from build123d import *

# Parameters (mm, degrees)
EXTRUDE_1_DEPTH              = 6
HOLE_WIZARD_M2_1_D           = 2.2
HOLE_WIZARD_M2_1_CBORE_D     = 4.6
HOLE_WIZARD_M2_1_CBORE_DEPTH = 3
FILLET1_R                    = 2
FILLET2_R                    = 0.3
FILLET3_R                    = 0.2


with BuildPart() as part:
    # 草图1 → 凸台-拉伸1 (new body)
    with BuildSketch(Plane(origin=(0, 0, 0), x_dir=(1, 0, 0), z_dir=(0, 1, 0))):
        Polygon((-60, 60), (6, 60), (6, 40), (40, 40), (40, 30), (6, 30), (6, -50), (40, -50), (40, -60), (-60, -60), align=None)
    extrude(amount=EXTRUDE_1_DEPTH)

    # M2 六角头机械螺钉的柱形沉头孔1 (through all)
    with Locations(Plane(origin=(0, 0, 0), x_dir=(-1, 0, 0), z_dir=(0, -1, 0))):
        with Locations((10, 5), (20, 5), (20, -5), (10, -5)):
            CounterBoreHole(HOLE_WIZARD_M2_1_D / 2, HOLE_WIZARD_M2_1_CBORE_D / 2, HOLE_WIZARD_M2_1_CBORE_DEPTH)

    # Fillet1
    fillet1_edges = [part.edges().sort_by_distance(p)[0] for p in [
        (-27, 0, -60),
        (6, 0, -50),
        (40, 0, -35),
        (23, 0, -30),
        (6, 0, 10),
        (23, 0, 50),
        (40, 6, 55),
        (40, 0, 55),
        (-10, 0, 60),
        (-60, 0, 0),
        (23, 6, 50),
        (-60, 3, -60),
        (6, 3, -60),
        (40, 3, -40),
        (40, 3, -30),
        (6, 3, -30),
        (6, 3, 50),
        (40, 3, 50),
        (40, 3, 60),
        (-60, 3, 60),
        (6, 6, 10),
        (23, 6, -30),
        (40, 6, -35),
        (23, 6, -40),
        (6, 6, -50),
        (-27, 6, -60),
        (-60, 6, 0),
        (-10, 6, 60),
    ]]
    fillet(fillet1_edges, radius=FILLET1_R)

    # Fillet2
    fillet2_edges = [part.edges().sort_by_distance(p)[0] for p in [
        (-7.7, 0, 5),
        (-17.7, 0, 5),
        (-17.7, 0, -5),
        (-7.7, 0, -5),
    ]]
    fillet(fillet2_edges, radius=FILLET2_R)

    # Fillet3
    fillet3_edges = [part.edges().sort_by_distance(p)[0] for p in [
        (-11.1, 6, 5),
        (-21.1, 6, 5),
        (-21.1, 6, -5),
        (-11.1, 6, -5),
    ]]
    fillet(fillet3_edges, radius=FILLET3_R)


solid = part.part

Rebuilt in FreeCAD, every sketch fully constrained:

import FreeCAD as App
import Part
import Sketcher
from FreeCAD import Vector
Q = App.Units.Quantity


def edges_at(feature, points):
    """Names of the edges that pass closest to the given points."""
    edges = feature.Shape.Edges
    near = lambda p: min(range(len(edges)), key=lambda i: edges[i].distToShape(Part.Vertex(*p))[0])
    return sorted({f"Edge{near(p) + 1}" for p in points})

doc = App.newDocument("Part")
body = doc.addObject("PartDesign::Body", "Body")

# Sketch on XZ plane
sketch1 = body.newObject("Sketcher::SketchObject", "Sketch")
sketch1.AttachmentSupport = (doc.getObject("XZ_Plane"), [""])
sketch1.MapMode = "FlatFace"
sketch1.addGeometry([
    Part.LineSegment(Vector(6, -60, 0), Vector(-60, -60, 0)),  # 0
    Part.LineSegment(Vector(-60, -60, 0), Vector(-60, 60, 0)),  # 1
    Part.LineSegment(Vector(-60, 60, 0), Vector(40, 60, 0)),  # 2
    Part.LineSegment(Vector(40, 60, 0), Vector(40, 50, 0)),  # 3
    Part.LineSegment(Vector(40, 50, 0), Vector(6, 50, 0)),  # 4
    Part.LineSegment(Vector(6, 50, 0), Vector(6, -30, 0)),  # 5
    Part.LineSegment(Vector(6, -30, 0), Vector(40, -30, 0)),  # 6
    Part.LineSegment(Vector(40, -30, 0), Vector(40, -40, 0)),  # 7
    Part.LineSegment(Vector(40, -40, 0), Vector(6, -40, 0)),  # 8
    Part.LineSegment(Vector(6, -40, 0), Vector(6, -60, 0)),  # 9
], False)
sketch1.addConstraint([
    Sketcher.Constraint("Coincident", 0, 2, 1, 1),
    Sketcher.Constraint("Coincident", 1, 2, 2, 1),
    Sketcher.Constraint("Coincident", 2, 2, 3, 1),
    Sketcher.Constraint("Coincident", 3, 2, 4, 1),
    Sketcher.Constraint("Coincident", 4, 2, 5, 1),
    Sketcher.Constraint("Coincident", 5, 2, 6, 1),
    Sketcher.Constraint("Coincident", 6, 2, 7, 1),
    Sketcher.Constraint("Coincident", 7, 2, 8, 1),
    Sketcher.Constraint("Coincident", 8, 2, 9, 1),
    Sketcher.Constraint("Coincident", 9, 2, 0, 1),
    Sketcher.Constraint("Horizontal", 0),
    Sketcher.Constraint("Vertical", 1),
    Sketcher.Constraint("Horizontal", 2),
    Sketcher.Constraint("Vertical", 3),
    Sketcher.Constraint("Horizontal", 4),
    Sketcher.Constraint("Vertical", 5),
    Sketcher.Constraint("Horizontal", 6),
    Sketcher.Constraint("Vertical", 7),
    Sketcher.Constraint("Horizontal", 8),
    Sketcher.Constraint("Vertical", 9),
    Sketcher.Constraint("Vertical", 3, 2, 6, 2),
    Sketcher.Constraint("Vertical", 5, 2, 8, 2),
    Sketcher.Constraint("Equal", 3, 7),
    Sketcher.Constraint("DistanceX", 0, 2, 0, 1, Q("66 mm")),
    Sketcher.Constraint("DistanceX", 2, 1, 2, 2, Q("100 mm")),
    Sketcher.Constraint("DistanceY", 1, 1, 1, 2, Q("120 mm")),
    Sketcher.Constraint("DistanceY", 3, 2, 3, 1, Q("10 mm")),
    Sketcher.Constraint("DistanceY", 5, 2, 5, 1, Q("80 mm")),
    Sketcher.Constraint("DistanceX", 0, 2, -1, 1, Q("60 mm")),
    Sketcher.Constraint("DistanceY", 0, 2, -1, 1, Q("60 mm")),
])
pad1 = body.newObject("PartDesign::Pad", "Pad")
pad1.Profile = sketch1
pad1.Length = 6
pad1.Reversed = True

# Sketch on XZ plane
sketch2 = body.newObject("Sketcher::SketchObject", "Sketch001")
sketch2.AttachmentSupport = (doc.getObject("XZ_Plane"), [""])
sketch2.MapMode = "FlatFace"
sketch2.addGeometry([
    Part.Circle(Vector(-10, -5, 0), Vector(0, 0, 1), 1.1),
    Part.Circle(Vector(-20, -5, 0), Vector(0, 0, 1), 1.1),
    Part.Circle(Vector(-20, 5, 0), Vector(0, 0, 1), 1.1),
    Part.Circle(Vector(-10, 5, 0), Vector(0, 0, 1), 1.1),
], False)
sketch2.addConstraint([
    Sketcher.Constraint("Equal", 0, 1),
    Sketcher.Constraint("Equal", 1, 2),
    Sketcher.Constraint("Equal", 2, 3),
    Sketcher.Constraint("Symmetric", 1, 3, 2, 3, -1),
    Sketcher.Constraint("Symmetric", 0, 3, 3, 3, -1),
    Sketcher.Constraint("Horizontal", 0, 3, 1, 3),
    Sketcher.Constraint("Diameter", 0, Q("2.2 mm")),
    Sketcher.Constraint("DistanceX", 0, 3, -1, 1, Q("10 mm")),
    Sketcher.Constraint("DistanceY", 0, 3, -1, 1, Q("5 mm")),
    Sketcher.Constraint("DistanceX", 1, 3, -1, 1, Q("20 mm")),
])
doc.recompute()
hole = body.newObject("PartDesign::Hole", "Hole")
hole.Profile = sketch2
hole.ThreadType = "None"
hole.Diameter = 2.2
hole.DepthType = "ThroughAll"
hole.HoleCutType = "Counterbore"
hole.HoleCutDiameter = 4.6
hole.HoleCutDepth = 3
doc.recompute()

fillet = body.newObject("PartDesign::Fillet", "Fillet")
fillet.Base = (hole, edges_at(hole, [
    (-27, 0, -60),
    (6, 0, -50),
    (40, 0, -35),
    (23, 0, -30),
    (6, 0, 10),
    (23, 0, 50),
    (40, 6, 55),
    (40, 0, 55),
    (-10, 0, 60),
    (-60, 0, 0),
    (23, 6, 50),
    (-60, 3, -60),
    (6, 3, -60),
    (40, 3, -40),
    (40, 3, -30),
    (6, 3, -30),
    (6, 3, 50),
    (40, 3, 50),
    (40, 3, 60),
    (-60, 3, 60),
    (6, 6, 10),
    (23, 6, -30),
    (40, 6, -35),
    (23, 6, -40),
    (6, 6, -50),
    (-27, 6, -60),
    (-60, 6, 0),
    (-10, 6, 60),
]))
fillet.Radius = 2
doc.recompute()

fillet2 = body.newObject("PartDesign::Fillet", "Fillet001")
fillet2.Base = (fillet, edges_at(fillet, [
    (-7.7, 0, 5),
    (-17.7, 0, 5),
    (-17.7, 0, -5),
    (-7.7, 0, -5),
]))
fillet2.Radius = 0.3
doc.recompute()

fillet3 = body.newObject("PartDesign::Fillet", "Fillet002")
fillet3.Base = (fillet2, edges_at(fillet2, [
    (-11.1, 6, 5),
    (-21.1, 6, 5),
    (-21.1, 6, -5),
    (-11.1, 6, -5),
]))
fillet3.Radius = 0.2

doc.recompute()
